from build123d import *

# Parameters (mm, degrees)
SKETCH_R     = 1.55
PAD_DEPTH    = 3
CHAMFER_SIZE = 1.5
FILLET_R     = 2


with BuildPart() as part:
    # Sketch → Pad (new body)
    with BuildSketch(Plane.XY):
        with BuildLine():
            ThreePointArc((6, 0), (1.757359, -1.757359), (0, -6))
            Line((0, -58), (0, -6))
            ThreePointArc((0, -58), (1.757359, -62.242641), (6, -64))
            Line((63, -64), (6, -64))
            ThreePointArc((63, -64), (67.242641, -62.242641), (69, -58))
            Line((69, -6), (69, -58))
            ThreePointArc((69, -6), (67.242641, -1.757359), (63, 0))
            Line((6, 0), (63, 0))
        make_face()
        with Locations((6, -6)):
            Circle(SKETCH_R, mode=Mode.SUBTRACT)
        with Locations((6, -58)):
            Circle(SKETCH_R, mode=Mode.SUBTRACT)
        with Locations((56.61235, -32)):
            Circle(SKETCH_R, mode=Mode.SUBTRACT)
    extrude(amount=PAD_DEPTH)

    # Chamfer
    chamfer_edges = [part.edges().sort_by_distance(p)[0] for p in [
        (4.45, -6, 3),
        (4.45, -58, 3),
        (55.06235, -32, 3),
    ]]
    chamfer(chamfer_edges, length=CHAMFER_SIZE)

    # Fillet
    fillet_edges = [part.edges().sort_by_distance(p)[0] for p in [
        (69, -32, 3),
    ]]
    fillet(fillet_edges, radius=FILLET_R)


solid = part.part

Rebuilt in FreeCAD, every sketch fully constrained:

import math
import FreeCAD as App
import Part
import Sketcher

V = App.Vector


def edges_at(feature, points):
    """Names of the edges that pass closest to the given points."""
    edges = feature.Shape.Edges
    near = lambda p: min(range(len(edges)), key=lambda i: edges[i].distToShape(Part.Vertex(*p))[0])
    return sorted({f"Edge{near(p) + 1}" for p in points})

doc = App.newDocument("Part")
params = doc.addObject("Spreadsheet::Sheet", "Params")
for row, (alias, value) in enumerate([
    ("sketch1_radius", "5.999999 mm"),
    ("sketch1_diameter", "3.1 mm"),
    ("sketch1_width", "57 mm"),
    ("sketch1_height", "52 mm"),
    ("pad1_length", "3 mm"),
    ("chamfer_size", "1.5 mm"),
    ("fillet_radius", "2 mm"),
], start=1):
    params.set(f"A{row}", alias)
    params.set(f"B{row}", "=" + value)
    params.setAlias(f"B{row}", alias)

body = doc.addObject("PartDesign::Body", "Body")

# Sketch on XY plane
sketch1 = body.newObject("Sketcher::SketchObject", "Sketch")
sketch1.AttachmentSupport = (doc.getObject("XY_Plane"), [""])
sketch1.MapMode = "FlatFace"
sketch1.addGeometry([
    Part.ArcOfCircle(Part.Circle(V(5.999999, -5.999999, 0), V(0, 0, 1), 5.999999), math.radians(89.99999), math.radians(180.00001)),  # 0
    Part.LineSegment(V(0, -6, 0), V(0, -58, 0)),  # 1
    Part.ArcOfCircle(Part.Circle(V(5.999999, -58.000001, 0), V(0, 0, 1), 5.999999), math.radians(179.99999), math.radians(270.00001)),  # 2
    Part.LineSegment(V(6, -64, 0), V(63, -64, 0)),  # 3
    Part.ArcOfCircle(Part.Circle(V(63.000001, -58.000001, 0), V(0, 0, 1), 5.999999), math.radians(-90.00001), math.radians(0.00001)),  # 4
    Part.LineSegment(V(69, -58, 0), V(69, -6, 0)),  # 5
    Part.ArcOfCircle(Part.Circle(V(63.000001, -5.999999, 0), V(0, 0, 1), 5.999999), math.radians(-0.00001), math.radians(90.00001)),  # 6
    Part.LineSegment(V(63, 0, 0), V(6, 0, 0)),  # 7
    Part.Circle(V(6, -58, 0), V(0, 0, 1), 1.55),  # 8
    Part.Circle(V(6, -6, 0), V(0, 0, 1), 1.55),  # 9
    Part.Circle(V(56.61235, -32, 0), V(0, 0, 1), 1.55),  # 10
], False)
sketch1.addConstraint([
    Sketcher.Constraint("Tangent", 0, 2, 1, 1),
    Sketcher.Constraint("Tangent", 1, 2, 2, 1),
    Sketcher.Constraint("Tangent", 2, 2, 3, 1),
    Sketcher.Constraint("Tangent", 3, 2, 4, 1),
    Sketcher.Constraint("Tangent", 4, 2, 5, 1),
    Sketcher.Constraint("Tangent", 5, 2, 6, 1),
    Sketcher.Constraint("Tangent", 6, 2, 7, 1),
    Sketcher.Constraint("Tangent", 7, 2, 0, 1),
    Sketcher.Constraint("Vertical", 1),
    Sketcher.Constraint("Horizontal", 3),
    Sketcher.Constraint("Vertical", 5),
    Sketcher.Constraint("Horizontal", 7),
    Sketcher.Constraint("Coincident", 8, 3, 2, 3),
    Sketcher.Constraint("Coincident", 9, 3, 0, 3),
    Sketcher.Constraint("Equal", 0, 2),
    Sketcher.Constraint("Equal", 2, 4),
    Sketcher.Constraint("Equal", 4, 6),
    Sketcher.Constraint("Equal", 8, 9),
    Sketcher.Constraint("Equal", 9, 10),
    Sketcher.Constraint("PointOnObject", 0, 2, -2),
    Sketcher.Constraint("PointOnObject", 6, 2, -1),
    Sketcher.Constraint("Radius", 0, 5.999999),
    Sketcher.Constraint("Diameter", 8, 3.1),
    Sketcher.Constraint("DistanceX", 3, 1, 3, 2, 57.0),
    Sketcher.Constraint("DistanceY", 1, 2, 1, 1, 52.0),
    Sketcher.Constraint("DistanceY", 10, 3, -1, 1, 32.0),
    Sketcher.Constraint("DistanceX", -1, 1, 10, 3, 56.61235),
])
sketch1.setExpression("Constraints[21]", "Params.sketch1_radius")
sketch1.setExpression("Constraints[22]", "Params.sketch1_diameter")
sketch1.setExpression("Constraints[23]", "Params.sketch1_width")
sketch1.setExpression("Constraints[24]", "Params.sketch1_height")
pad1 = body.newObject("PartDesign::Pad", "Pad")
pad1.Profile = sketch1
pad1.setExpression("Length", "Params.pad1_length")
doc.recompute()

chamfer = body.newObject("PartDesign::Chamfer", "Chamfer")
chamfer.Base = (pad1, edges_at(pad1, [(4.45, -6, 3), (4.45, -58, 3), (55.062, -32, 3)]))
chamfer.setExpression("Size", "Params.chamfer_size")
doc.recompute()

fillet = body.newObject("PartDesign::Fillet", "Fillet")
fillet.Base = (chamfer, edges_at(chamfer, [(69, -32, 3)]))
fillet.setExpression("Radius", "Params.fillet_radius")

doc.recompute()
